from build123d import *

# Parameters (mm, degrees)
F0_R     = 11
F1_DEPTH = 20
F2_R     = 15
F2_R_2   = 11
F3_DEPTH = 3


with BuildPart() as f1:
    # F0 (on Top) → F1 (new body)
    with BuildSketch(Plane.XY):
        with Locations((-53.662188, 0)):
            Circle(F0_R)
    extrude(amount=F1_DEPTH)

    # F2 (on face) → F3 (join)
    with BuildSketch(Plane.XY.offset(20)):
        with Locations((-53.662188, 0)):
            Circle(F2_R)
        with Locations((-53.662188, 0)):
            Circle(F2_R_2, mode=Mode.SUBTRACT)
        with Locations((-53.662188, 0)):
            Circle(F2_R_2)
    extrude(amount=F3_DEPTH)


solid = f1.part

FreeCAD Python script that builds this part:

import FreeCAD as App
import Part
import Sketcher

V = App.Vector
Q = App.Units.Quantity

doc = App.newDocument("Part")
body = doc.addObject("PartDesign::Body", "Body")

sketch1 = doc.addObject("Sketcher::SketchObject", "Sketch")
body.addObject(sketch1)
sketch1.AttachmentSupport = (doc.XY_Plane, [""])
sketch1.MapMode = "FlatFace"
sketch1.addGeometry(Part.Circle(V(-53.662188, 0, 0), V(0, 0, 1), 11), False)
sketch1.addConstraint([
    Sketcher.Constraint("PointOnObject", 0, 3, -1),
    Sketcher.Constraint("Diameter", 0, Q("22 mm")),
    Sketcher.Constraint("DistanceX", 0, 3, -1, 1, Q("53.662188 mm")),
])
pad1 = doc.addObject("PartDesign::Pad", "Pad")
body.addObject(pad1)
pad1.Profile = sketch1
pad1.Length = 20

sketch2 = doc.addObject("Sketcher::SketchObject", "Sketch001")
body.addObject(sketch2)
sketch2.AttachmentSupport = (doc.XY_Plane, [""])
sketch2.MapMode = "FlatFace"
sketch2.AttachmentOffset = App.Placement(V(0, 0, 20), App.Rotation())
sketch2.addGeometry(Part.Circle(V(-53.662188, 0, 0), V(0, 0, 1), 15), False)
sketch2.addConstraint([
    Sketcher.Constraint("PointOnObject", 0, 3, -1),
    Sketcher.Constraint("Diameter", 0, Q("30 mm")),
    Sketcher.Constraint("DistanceX", 0, 3, -1, 1, Q("53.662188 mm")),
])
pad2 = doc.addObject("PartDesign::Pad", "Pad001")
body.addObject(pad2)
pad2.Profile = sketch2
pad2.Length = 3

doc.recompute()
